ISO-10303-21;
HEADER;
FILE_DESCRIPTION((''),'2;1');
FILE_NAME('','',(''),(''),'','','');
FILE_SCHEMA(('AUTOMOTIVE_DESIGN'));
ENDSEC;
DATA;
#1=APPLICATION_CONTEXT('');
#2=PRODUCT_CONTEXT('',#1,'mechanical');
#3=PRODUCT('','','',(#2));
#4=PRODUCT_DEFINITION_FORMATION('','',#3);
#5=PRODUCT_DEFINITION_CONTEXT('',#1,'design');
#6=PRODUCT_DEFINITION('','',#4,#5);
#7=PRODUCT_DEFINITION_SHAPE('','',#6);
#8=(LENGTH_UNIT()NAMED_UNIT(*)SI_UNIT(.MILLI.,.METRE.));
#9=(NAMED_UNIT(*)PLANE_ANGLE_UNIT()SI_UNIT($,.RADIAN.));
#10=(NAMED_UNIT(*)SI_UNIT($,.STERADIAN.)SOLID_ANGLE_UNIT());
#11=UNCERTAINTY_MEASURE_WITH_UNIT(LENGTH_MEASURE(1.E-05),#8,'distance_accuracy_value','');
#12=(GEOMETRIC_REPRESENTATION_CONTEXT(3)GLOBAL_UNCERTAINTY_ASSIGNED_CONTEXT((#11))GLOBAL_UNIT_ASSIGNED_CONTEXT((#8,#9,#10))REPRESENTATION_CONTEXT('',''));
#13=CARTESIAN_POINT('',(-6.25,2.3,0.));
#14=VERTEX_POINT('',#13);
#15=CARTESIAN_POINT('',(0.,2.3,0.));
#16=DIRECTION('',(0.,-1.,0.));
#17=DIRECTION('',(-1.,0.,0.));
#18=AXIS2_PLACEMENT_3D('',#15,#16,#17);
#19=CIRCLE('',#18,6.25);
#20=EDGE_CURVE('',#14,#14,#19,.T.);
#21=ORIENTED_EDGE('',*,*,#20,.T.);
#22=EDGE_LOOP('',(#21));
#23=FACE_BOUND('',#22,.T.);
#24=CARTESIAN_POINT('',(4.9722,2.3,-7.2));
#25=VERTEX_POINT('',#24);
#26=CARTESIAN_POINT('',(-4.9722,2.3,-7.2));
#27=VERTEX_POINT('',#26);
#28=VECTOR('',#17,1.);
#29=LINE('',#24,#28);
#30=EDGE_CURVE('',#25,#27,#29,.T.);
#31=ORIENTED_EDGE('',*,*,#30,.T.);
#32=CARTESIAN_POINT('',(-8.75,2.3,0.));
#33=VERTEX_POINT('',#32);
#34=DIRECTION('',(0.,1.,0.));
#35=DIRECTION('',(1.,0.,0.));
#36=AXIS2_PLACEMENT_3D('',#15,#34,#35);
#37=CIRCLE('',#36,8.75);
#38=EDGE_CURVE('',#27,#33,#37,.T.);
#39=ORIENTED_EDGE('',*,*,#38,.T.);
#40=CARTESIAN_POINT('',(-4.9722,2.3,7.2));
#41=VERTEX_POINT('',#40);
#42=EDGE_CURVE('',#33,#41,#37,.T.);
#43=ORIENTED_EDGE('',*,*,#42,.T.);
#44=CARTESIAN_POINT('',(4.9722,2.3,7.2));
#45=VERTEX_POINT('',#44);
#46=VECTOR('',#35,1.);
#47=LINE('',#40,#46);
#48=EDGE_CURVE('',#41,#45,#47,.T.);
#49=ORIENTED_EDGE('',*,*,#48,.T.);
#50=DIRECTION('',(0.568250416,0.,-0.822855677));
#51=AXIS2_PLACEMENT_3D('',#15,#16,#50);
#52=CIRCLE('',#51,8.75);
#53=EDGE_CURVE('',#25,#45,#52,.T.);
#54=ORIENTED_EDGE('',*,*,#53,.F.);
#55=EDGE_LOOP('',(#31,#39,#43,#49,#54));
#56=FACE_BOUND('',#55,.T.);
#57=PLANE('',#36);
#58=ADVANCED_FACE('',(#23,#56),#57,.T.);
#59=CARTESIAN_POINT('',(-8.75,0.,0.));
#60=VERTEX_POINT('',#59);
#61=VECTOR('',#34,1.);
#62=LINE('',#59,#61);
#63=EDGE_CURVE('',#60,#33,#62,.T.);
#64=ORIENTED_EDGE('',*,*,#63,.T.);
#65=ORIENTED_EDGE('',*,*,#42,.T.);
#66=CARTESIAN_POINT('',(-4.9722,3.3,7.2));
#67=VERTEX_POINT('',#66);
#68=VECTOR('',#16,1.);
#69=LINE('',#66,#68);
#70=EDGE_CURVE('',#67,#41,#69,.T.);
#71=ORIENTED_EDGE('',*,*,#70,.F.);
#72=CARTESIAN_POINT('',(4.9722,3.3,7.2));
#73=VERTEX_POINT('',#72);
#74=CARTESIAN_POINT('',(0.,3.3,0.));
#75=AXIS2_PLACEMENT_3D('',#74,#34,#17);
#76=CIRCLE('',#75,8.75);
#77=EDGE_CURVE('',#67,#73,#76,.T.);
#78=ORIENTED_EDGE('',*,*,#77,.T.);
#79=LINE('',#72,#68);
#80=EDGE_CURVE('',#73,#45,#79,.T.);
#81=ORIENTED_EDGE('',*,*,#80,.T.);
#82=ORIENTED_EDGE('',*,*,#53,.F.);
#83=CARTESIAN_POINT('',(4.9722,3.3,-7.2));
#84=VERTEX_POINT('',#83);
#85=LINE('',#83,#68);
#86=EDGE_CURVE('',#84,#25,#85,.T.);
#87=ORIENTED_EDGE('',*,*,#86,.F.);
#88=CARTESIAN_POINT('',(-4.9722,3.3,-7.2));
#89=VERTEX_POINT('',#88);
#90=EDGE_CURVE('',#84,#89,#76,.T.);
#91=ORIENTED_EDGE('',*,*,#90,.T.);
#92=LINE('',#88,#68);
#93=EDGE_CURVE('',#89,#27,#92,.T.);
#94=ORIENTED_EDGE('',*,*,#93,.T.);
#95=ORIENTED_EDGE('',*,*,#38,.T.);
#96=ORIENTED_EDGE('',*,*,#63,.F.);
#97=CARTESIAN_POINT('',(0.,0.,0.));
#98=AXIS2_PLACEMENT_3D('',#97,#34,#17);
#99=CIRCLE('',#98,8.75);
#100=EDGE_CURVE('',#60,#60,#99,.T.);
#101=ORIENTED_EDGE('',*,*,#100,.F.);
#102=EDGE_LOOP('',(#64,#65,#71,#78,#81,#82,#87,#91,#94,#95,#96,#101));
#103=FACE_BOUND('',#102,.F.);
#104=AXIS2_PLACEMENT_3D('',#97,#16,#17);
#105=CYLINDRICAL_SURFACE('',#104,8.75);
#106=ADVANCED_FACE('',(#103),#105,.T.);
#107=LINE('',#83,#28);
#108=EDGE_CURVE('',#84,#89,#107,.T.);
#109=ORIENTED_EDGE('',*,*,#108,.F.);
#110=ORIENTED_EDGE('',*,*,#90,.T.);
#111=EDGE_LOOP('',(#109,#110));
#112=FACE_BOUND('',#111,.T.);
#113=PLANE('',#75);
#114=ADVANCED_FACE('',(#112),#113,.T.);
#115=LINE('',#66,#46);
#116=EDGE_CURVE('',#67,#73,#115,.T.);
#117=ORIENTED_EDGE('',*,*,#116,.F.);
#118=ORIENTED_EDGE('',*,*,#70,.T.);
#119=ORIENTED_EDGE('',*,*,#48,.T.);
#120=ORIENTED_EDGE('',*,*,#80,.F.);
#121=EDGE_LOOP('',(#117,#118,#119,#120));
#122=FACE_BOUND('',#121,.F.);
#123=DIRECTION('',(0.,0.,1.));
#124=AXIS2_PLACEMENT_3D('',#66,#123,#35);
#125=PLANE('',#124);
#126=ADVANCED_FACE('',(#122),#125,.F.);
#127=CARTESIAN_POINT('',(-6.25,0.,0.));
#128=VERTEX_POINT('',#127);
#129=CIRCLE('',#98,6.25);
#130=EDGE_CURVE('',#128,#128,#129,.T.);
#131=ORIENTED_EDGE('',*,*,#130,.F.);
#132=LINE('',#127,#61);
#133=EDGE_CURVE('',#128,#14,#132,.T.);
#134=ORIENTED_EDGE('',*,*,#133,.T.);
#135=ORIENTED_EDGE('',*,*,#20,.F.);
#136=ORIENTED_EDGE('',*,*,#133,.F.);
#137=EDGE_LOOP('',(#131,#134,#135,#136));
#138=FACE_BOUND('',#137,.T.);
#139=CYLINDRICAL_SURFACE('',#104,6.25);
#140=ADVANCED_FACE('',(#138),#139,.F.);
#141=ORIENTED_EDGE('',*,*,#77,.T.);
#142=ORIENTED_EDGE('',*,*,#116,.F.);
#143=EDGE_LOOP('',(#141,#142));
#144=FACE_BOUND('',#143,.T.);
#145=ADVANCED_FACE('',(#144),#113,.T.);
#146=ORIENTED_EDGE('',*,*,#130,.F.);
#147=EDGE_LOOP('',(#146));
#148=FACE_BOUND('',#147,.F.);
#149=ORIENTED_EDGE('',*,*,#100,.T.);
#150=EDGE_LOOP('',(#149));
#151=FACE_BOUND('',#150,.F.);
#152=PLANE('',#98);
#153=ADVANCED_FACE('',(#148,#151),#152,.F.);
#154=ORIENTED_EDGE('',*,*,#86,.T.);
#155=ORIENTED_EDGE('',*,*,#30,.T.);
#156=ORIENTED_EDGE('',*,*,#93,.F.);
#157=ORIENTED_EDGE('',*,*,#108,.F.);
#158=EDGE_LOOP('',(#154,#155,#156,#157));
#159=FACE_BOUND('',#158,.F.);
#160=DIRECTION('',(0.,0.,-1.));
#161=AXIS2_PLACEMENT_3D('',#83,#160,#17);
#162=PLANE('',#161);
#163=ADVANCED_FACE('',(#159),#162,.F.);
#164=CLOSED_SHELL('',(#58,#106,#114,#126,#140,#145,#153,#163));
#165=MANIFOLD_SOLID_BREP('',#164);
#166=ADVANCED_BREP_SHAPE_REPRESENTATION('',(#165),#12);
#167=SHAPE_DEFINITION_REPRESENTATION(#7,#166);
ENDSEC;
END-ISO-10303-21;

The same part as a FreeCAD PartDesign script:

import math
import FreeCAD as App
import Part
import Sketcher

V = App.Vector

doc = App.newDocument("Part")
body = doc.addObject("PartDesign::Body", "Body")

sketch1 = body.newObject("Sketcher::SketchObject", "Sketch")
sketch1.AttachmentSupport = (doc.getObject("XZ_Plane"), [""])
sketch1.MapMode = "FlatFace"
sketch1.addGeometry(Part.Circle(V(0, 0, 0), V(0, 0, 1), 8.75), False)
sketch1.addGeometry(Part.Circle(V(0, 0, 0), V(0, 0, 1), 6.25), False)
sketch1.addConstraint(Sketcher.Constraint("Coincident", 0, 3, -1, 1))
sketch1.addConstraint(Sketcher.Constraint("Coincident", 1, 3, -1, 1))
sketch1.addConstraint(Sketcher.Constraint("Diameter", 0, 17.5))
sketch1.addConstraint(Sketcher.Constraint("Diameter", 1, 12.5))
pad1 = body.newObject("PartDesign::Pad", "Pad")
pad1.Profile = sketch1
pad1.Length = 3.3
pad1.Reversed = True

sketch2 = body.newObject("Sketcher::SketchObject", "Sketch001")
sketch2.AttachmentSupport = (doc.getObject("XZ_Plane"), [""])
sketch2.MapMode = "FlatFace"
sketch2.AttachmentOffset = App.Placement(V(0, 0, -3.3), App.Rotation())
sketch2.addGeometry(Part.ArcOfCircle(Part.Circle(V(0, 0, 0), V(0, 0, 1), 8.75), math.radians(-55.371688), math.radians(55.371688)), False)
sketch2.addGeometry(Part.LineSegment(V(4.9722, -7.2, 0), V(-4.9722, -7.2, 0)), False)
sketch2.addGeometry(Part.ArcOfCircle(Part.Circle(V(0, 0, 0), V(0, 0, 1), 8.75), math.radians(124.628312), math.radians(235.371688)), False)
sketch2.addGeometry(Part.LineSegment(V(-4.9722, 7.2, 0), V(4.9722, 7.2, 0)), False)
sketch2.addConstraint(Sketcher.Constraint("Coincident", 0, 1, 1, 1))
sketch2.addConstraint(Sketcher.Constraint("Coincident", 1, 2, 2, 2))
sketch2.addConstraint(Sketcher.Constraint("Coincident", 2, 1, 3, 1))
sketch2.addConstraint(Sketcher.Constraint("Coincident", 3, 2, 0, 2))
sketch2.addConstraint(Sketcher.Constraint("Horizontal", 1))
sketch2.addConstraint(Sketcher.Constraint("Horizontal", 3))
sketch2.addConstraint(Sketcher.Constraint("Coincident", 0, 3, -1, 1))
sketch2.addConstraint(Sketcher.Constraint("Coincident", 2, 3, -1, 1))
sketch2.addConstraint(Sketcher.Constraint("Equal", 0, 2))
sketch2.addConstraint(Sketcher.Constraint("Vertical", 1, 2, 2, 1))
sketch2.addConstraint(Sketcher.Constraint("DistanceY", 1, 2, 2, 1, 14.4))
sketch2.addConstraint(Sketcher.Constraint("Radius", 0, 8.75))
pocket1 = body.newObject("PartDesign::Pocket", "Pocket")
pocket1.Profile = sketch2
pocket1.Length = 1
pocket1.Reversed = True

doc.recompute()
